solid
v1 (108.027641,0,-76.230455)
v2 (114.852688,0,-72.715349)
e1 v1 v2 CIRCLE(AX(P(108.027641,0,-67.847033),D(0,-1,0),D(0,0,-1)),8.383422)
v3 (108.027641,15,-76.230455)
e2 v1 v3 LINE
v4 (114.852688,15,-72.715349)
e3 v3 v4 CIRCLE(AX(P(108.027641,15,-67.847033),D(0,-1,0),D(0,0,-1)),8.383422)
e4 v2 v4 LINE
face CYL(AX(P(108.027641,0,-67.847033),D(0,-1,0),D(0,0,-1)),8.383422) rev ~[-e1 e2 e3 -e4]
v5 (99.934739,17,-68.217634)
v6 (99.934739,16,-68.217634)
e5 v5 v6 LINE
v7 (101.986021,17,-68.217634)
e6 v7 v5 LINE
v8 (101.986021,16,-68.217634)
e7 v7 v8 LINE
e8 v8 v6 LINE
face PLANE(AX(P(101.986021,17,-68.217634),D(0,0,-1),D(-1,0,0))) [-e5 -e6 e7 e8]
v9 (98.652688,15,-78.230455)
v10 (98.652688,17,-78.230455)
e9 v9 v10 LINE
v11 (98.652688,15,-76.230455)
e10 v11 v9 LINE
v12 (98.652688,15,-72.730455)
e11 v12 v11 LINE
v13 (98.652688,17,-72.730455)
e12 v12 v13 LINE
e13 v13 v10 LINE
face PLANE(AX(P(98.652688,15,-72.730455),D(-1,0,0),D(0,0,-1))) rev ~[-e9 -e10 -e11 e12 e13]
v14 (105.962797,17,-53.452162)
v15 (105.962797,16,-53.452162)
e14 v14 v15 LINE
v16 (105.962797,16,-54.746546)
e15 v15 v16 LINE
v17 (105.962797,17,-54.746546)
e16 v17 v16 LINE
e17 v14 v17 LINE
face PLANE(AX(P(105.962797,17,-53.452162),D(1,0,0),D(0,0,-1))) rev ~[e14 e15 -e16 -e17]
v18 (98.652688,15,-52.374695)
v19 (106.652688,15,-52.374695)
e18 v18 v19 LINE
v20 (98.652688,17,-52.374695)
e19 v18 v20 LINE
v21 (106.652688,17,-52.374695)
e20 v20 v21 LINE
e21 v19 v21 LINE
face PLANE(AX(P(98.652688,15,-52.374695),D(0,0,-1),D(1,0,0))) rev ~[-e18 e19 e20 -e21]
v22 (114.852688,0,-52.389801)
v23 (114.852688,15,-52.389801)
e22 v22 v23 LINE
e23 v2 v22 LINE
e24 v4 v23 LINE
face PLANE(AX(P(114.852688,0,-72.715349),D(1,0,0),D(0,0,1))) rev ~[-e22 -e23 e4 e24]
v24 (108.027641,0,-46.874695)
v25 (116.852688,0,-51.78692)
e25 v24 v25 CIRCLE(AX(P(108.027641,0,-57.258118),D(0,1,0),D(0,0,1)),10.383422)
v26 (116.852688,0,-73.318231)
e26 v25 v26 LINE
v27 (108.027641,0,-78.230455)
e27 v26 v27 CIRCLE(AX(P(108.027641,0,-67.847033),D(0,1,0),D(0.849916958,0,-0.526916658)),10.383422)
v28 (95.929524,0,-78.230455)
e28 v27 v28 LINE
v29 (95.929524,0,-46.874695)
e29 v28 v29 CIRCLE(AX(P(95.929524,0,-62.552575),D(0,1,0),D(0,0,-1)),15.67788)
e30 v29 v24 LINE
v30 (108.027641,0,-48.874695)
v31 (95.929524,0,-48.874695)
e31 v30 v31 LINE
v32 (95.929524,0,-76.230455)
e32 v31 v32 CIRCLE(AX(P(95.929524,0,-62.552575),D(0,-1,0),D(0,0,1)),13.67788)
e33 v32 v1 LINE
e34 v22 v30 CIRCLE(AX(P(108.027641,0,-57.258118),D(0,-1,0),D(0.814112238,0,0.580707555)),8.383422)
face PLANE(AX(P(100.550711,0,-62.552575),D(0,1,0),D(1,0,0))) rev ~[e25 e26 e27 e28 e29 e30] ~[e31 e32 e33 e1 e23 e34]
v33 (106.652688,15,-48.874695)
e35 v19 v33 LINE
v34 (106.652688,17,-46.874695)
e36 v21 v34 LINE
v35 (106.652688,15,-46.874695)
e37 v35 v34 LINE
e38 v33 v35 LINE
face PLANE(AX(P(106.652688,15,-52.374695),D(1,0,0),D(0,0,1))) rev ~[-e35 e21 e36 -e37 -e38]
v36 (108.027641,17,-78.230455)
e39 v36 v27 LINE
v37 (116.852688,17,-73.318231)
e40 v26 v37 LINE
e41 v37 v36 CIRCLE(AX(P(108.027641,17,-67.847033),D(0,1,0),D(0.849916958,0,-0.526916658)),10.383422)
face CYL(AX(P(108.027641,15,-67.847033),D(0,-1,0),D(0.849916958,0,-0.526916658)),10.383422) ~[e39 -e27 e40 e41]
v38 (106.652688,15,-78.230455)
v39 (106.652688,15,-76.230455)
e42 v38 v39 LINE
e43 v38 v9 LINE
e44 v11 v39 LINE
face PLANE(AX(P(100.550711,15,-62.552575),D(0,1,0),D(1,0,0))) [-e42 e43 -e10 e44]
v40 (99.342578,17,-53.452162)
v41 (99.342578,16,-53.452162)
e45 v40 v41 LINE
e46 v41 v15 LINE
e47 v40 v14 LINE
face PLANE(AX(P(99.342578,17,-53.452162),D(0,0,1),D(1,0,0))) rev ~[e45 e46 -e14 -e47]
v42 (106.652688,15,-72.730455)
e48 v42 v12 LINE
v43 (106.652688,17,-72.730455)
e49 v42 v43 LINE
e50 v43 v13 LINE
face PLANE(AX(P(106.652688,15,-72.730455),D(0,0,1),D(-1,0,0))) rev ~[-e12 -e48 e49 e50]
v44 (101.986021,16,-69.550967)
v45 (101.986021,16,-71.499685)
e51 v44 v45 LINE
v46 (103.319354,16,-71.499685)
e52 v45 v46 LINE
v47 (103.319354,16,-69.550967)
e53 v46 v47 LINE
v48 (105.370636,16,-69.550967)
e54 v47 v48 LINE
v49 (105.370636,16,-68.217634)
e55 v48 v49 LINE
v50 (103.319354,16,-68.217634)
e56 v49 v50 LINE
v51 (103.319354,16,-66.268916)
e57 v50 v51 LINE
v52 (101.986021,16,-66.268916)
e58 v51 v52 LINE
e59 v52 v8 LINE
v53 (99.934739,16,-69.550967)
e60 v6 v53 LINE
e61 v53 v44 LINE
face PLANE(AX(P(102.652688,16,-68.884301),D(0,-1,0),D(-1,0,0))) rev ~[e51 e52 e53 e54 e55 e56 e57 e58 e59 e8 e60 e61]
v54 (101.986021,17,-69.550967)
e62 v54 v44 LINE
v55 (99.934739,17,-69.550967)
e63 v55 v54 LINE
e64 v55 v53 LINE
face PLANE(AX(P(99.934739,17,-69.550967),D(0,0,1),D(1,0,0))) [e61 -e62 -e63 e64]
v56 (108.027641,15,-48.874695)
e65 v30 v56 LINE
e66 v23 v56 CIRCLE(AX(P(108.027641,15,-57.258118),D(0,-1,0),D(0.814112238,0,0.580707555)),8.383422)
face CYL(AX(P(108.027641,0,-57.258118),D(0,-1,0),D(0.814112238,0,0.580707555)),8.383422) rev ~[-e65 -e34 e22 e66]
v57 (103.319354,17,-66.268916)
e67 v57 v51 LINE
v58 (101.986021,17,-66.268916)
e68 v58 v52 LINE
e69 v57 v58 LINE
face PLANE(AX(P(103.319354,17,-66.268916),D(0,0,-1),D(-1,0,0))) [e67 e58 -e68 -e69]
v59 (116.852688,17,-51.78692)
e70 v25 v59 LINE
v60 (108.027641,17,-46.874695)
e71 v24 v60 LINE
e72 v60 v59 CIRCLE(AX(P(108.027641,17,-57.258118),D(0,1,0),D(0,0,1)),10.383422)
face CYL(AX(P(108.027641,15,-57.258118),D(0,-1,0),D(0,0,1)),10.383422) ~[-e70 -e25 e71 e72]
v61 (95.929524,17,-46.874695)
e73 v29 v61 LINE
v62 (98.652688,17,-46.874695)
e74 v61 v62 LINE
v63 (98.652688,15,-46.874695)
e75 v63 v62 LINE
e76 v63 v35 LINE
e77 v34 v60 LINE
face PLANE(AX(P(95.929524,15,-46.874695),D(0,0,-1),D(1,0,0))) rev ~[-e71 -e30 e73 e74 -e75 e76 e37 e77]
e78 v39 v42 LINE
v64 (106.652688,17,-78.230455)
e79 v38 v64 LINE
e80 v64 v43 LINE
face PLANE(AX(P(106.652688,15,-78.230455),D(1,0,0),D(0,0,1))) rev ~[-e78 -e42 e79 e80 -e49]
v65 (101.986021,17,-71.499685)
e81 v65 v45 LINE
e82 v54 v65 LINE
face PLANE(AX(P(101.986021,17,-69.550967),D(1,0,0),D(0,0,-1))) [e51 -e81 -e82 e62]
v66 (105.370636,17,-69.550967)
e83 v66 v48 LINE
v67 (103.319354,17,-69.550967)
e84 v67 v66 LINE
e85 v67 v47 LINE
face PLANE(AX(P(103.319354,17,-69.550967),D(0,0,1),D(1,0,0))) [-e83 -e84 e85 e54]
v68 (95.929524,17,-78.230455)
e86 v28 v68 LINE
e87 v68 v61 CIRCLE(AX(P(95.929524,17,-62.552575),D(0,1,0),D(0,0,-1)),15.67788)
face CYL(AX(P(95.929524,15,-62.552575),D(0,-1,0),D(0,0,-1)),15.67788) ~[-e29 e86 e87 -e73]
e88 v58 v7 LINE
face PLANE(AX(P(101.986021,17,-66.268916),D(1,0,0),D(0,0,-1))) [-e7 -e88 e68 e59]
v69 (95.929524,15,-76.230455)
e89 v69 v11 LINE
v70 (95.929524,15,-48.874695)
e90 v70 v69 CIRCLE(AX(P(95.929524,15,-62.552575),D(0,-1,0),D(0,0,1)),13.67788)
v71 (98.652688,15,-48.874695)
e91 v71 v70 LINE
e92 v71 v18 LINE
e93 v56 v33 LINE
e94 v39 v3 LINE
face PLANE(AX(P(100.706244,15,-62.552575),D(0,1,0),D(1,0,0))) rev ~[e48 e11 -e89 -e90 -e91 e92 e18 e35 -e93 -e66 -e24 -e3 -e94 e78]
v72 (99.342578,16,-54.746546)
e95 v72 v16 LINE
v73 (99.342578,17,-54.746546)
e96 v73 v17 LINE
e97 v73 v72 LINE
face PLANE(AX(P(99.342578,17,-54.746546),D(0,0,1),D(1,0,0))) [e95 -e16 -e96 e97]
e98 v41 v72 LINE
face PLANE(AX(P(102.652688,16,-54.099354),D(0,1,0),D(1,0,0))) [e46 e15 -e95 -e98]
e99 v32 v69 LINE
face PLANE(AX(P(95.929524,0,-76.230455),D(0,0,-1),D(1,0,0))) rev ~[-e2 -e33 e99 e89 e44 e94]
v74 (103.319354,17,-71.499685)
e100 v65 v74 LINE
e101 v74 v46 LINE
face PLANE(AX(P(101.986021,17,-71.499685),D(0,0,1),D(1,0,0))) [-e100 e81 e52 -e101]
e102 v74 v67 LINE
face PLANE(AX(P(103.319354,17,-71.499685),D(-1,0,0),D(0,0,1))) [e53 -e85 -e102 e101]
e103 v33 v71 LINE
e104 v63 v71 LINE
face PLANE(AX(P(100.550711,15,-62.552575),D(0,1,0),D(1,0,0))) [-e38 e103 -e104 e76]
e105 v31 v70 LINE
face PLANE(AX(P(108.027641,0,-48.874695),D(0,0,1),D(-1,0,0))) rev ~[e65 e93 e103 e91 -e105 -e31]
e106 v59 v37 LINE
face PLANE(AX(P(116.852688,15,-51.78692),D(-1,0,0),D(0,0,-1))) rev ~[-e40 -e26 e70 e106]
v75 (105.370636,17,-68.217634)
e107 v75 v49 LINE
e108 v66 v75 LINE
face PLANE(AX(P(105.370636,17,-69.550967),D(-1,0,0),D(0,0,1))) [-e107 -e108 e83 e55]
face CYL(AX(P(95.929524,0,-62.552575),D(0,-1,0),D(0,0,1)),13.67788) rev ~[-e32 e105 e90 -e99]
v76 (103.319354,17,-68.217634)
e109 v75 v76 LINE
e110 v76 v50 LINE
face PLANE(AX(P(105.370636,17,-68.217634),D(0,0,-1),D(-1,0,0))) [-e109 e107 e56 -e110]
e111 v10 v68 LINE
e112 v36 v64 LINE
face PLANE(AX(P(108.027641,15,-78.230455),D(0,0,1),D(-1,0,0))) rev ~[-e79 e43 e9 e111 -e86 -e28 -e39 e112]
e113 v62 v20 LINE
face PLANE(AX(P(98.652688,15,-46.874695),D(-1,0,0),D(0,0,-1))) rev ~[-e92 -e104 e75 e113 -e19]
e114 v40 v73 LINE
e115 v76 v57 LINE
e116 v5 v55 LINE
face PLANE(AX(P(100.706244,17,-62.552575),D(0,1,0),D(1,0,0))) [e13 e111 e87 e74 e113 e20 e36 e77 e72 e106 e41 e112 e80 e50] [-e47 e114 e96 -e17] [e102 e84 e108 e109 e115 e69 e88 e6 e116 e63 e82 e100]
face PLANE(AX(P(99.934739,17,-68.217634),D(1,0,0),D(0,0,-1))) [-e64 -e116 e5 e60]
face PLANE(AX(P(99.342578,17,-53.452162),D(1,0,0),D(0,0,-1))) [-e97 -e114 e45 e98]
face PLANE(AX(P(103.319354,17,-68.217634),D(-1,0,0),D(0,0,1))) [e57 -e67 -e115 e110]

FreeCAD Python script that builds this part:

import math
import FreeCAD as App
import Part
import Sketcher

V = App.Vector
Q = App.Units.Quantity


def add_polygon(sketch, points):
    """Adds a closed chain of lines whose ends are joined by coincident constraints."""
    first, n = sketch.GeometryCount, len(points)
    for a, b in zip(points, points[1:] + points[:1]):
        sketch.addGeometry(Part.LineSegment(App.Vector(*a, 0), App.Vector(*b, 0)), False)
    for i in range(n):
        sketch.addConstraint(Sketcher.Constraint("Coincident", first + i, 2, first + (i + 1) % n, 1))

doc = App.newDocument("Part")
body = doc.addObject("PartDesign::Body", "Body")

sketch1 = body.newObject("Sketcher::SketchObject", "Sketch")
sketch1.AttachmentSupport = (doc.getObject("XZ_Plane"), [""])
sketch1.MapMode = "FlatFace"
sketch1.addGeometry(Part.LineSegment(V(96, -47, 0), V(108, -47, 0)), False)
sketch1.addGeometry(Part.ArcOfCircle(Part.Circle(V(108, -57, 0), V(0, 0, 1), 10), math.radians(32), math.radians(90)), False)
sketch1.addGeometry(Part.LineSegment(V(117, -52, 0), V(117, -73, 0)), False)
sketch1.addGeometry(Part.ArcOfCircle(Part.Circle(V(108, -68, 0), V(0, 0, 1), 10), math.radians(-90), math.radians(-32)), False)
sketch1.addGeometry(Part.LineSegment(V(108, -78, 0), V(96, -78, 0)), False)
sketch1.addGeometry(Part.ArcOfCircle(Part.Circle(V(96, -63, 0), V(0, 0, 1), 16), math.radians(90), math.radians(270)), False)
sketch1.addGeometry(Part.ArcOfCircle(Part.Circle(V(96, -63, 0), V(0, 0, 1), 14), math.radians(90), math.radians(270)), False)
sketch1.addGeometry(Part.LineSegment(V(96, -76, 0), V(108, -76, 0)), False)
sketch1.addGeometry(Part.ArcOfCircle(Part.Circle(V(108, -68, 0), V(0, 0, 1), 8), math.radians(-90), math.radians(-36)), False)
sketch1.addGeometry(Part.LineSegment(V(115, -73, 0), V(115, -52, 0)), False)
sketch1.addGeometry(Part.ArcOfCircle(Part.Circle(V(108, -57, 0), V(0, 0, 1), 8), math.radians(36), math.radians(90)), False)
sketch1.addGeometry(Part.LineSegment(V(108, -49, 0), V(96, -49, 0)), False)
sketch1.addConstraint(Sketcher.Constraint("Tangent", 0, 2, 1, 2))
sketch1.addConstraint(Sketcher.Constraint("Coincident", 1, 1, 2, 1))
sketch1.addConstraint(Sketcher.Constraint("Coincident", 2, 2, 3, 2))
sketch1.addConstraint(Sketcher.Constraint("Tangent", 3, 1, 4, 1))
sketch1.addConstraint(Sketcher.Constraint("Tangent", 4, 2, 5, 2))
sketch1.addConstraint(Sketcher.Constraint("Tangent", 5, 1, 0, 1))
sketch1.addConstraint(Sketcher.Constraint("Tangent", 6, 2, 7, 1))
sketch1.addConstraint(Sketcher.Constraint("Tangent", 7, 2, 8, 1))
sketch1.addConstraint(Sketcher.Constraint("Coincident", 8, 2, 9, 1))
sketch1.addConstraint(Sketcher.Constraint("Coincident", 9, 2, 10, 1))
sketch1.addConstraint(Sketcher.Constraint("Tangent", 10, 2, 11, 1))
sketch1.addConstraint(Sketcher.Constraint("Tangent", 11, 2, 6, 1))
sketch1.addConstraint(Sketcher.Constraint("Horizontal", 0))
sketch1.addConstraint(Sketcher.Constraint("Vertical", 2))
sketch1.addConstraint(Sketcher.Constraint("Horizontal", 4))
sketch1.addConstraint(Sketcher.Constraint("Horizontal", 7))
sketch1.addConstraint(Sketcher.Constraint("Vertical", 9))
sketch1.addConstraint(Sketcher.Constraint("Horizontal", 11))
sketch1.addConstraint(Sketcher.Constraint("Coincident", 6, 3, 5, 3))
sketch1.addConstraint(Sketcher.Constraint("Coincident", 8, 3, 3, 3))
sketch1.addConstraint(Sketcher.Constraint("Coincident", 10, 3, 1, 3))
sketch1.addConstraint(Sketcher.Constraint("Equal", 1, 3))
sketch1.addConstraint(Sketcher.Constraint("Vertical", 1, 3, 3, 3))
sketch1.addConstraint(Sketcher.Constraint("DistanceY", 4, 2, 6, 2, Q("2 mm")))
sketch1.addConstraint(Sketcher.Constraint("DistanceX", 8, 2, 2, 2, Q("2 mm")))
sketch1.addConstraint(Sketcher.Constraint("Radius", 5, Q("15.67788 mm")))
sketch1.addConstraint(Sketcher.Constraint("Radius", 1, Q("10.383422 mm")))
sketch1.addConstraint(Sketcher.Constraint("DistanceY", 2, 2, 2, 1, Q("21.531311 mm")))
sketch1.addConstraint(Sketcher.Constraint("DistanceY", 9, 2, -1, 1, Q("52.389801 mm")))
sketch1.addConstraint(Sketcher.Constraint("DistanceX", 0, 1, 0, 2, Q("12.098117 mm")))
sketch1.addConstraint(Sketcher.Constraint("DistanceX", -1, 1, 1, 3, Q("108.027641 mm")))
pad1 = body.newObject("PartDesign::Pad", "Pad")
pad1.Profile = sketch1
pad1.Length = 15
pad1.Reversed = True

sketch2 = body.newObject("Sketcher::SketchObject", "Sketch001")
sketch2.AttachmentSupport = (doc.getObject("XZ_Plane"), [""])
sketch2.MapMode = "FlatFace"
sketch2.AttachmentOffset = App.Placement(V(0, 0, -15), App.Rotation())
sketch2.addGeometry(Part.LineSegment(V(106.7, -72.7, 0), V(98.7, -72.7, 0)), False)
sketch2.addGeometry(Part.LineSegment(V(98.7, -72.7, 0), V(98.7, -78.2, 0)), False)
sketch2.addGeometry(Part.LineSegment(V(98.7, -78.2, 0), V(95.9, -78.2, 0)), False)
sketch2.addGeometry(Part.ArcOfCircle(Part.Circle(V(95.9, -62.6, 0), V(0, 0, 1), 15.7), math.radians(90), math.radians(270)), False)
sketch2.addGeometry(Part.LineSegment(V(95.9, -46.9, 0), V(98.7, -46.9, 0)), False)
sketch2.addGeometry(Part.LineSegment(V(98.7, -46.9, 0), V(98.7, -52.4, 0)), False)
sketch2.addGeometry(Part.LineSegment(V(98.7, -52.4, 0), V(106.7, -52.4, 0)), False)
sketch2.addGeometry(Part.LineSegment(V(106.7, -52.4, 0), V(106.7, -46.9, 0)), False)
sketch2.addGeometry(Part.LineSegment(V(106.7, -46.9, 0), V(108, -46.9, 0)), False)
sketch2.addGeometry(Part.ArcOfCircle(Part.Circle(V(108, -57.3, 0), V(0, 0, 1), 10.4), math.radians(32), math.radians(90)), False)
sketch2.addGeometry(Part.LineSegment(V(116.9, -51.8, 0), V(116.9, -73.3, 0)), False)
sketch2.addGeometry(Part.ArcOfCircle(Part.Circle(V(108, -67.8, 0), V(0, 0, 1), 10.4), math.radians(-90), math.radians(-32)), False)
sketch2.addGeometry(Part.LineSegment(V(108, -78.2, 0), V(106.7, -78.2, 0)), False)
sketch2.addGeometry(Part.LineSegment(V(106.7, -78.2, 0), V(106.7, -72.7, 0)), False)
sketch2.addConstraint(Sketcher.Constraint("Coincident", 0, 2, 1, 1))
sketch2.addConstraint(Sketcher.Constraint("Coincident", 1, 2, 2, 1))
sketch2.addConstraint(Sketcher.Constraint("Tangent", 2, 2, 3, 2))
sketch2.addConstraint(Sketcher.Constraint("Tangent", 3, 1, 4, 1))
sketch2.addConstraint(Sketcher.Constraint("Coincident", 4, 2, 5, 1))
sketch2.addConstraint(Sketcher.Constraint("Coincident", 5, 2, 6, 1))
sketch2.addConstraint(Sketcher.Constraint("Coincident", 6, 2, 7, 1))
sketch2.addConstraint(Sketcher.Constraint("Coincident", 7, 2, 8, 1))
sketch2.addConstraint(Sketcher.Constraint("Tangent", 8, 2, 9, 2))
sketch2.addConstraint(Sketcher.Constraint("Coincident", 9, 1, 10, 1))
sketch2.addConstraint(Sketcher.Constraint("Coincident", 10, 2, 11, 2))
sketch2.addConstraint(Sketcher.Constraint("Tangent", 11, 1, 12, 1))
sketch2.addConstraint(Sketcher.Constraint("Coincident", 12, 2, 13, 1))
sketch2.addConstraint(Sketcher.Constraint("Coincident", 13, 2, 0, 1))
sketch2.addConstraint(Sketcher.Constraint("Horizontal", 0))
sketch2.addConstraint(Sketcher.Constraint("Vertical", 1))
sketch2.addConstraint(Sketcher.Constraint("Horizontal", 2))
sketch2.addConstraint(Sketcher.Constraint("Horizontal", 4))
sketch2.addConstraint(Sketcher.Constraint("Vertical", 5))
sketch2.addConstraint(Sketcher.Constraint("Horizontal", 6))
sketch2.addConstraint(Sketcher.Constraint("Vertical", 7))
sketch2.addConstraint(Sketcher.Constraint("Horizontal", 8))
sketch2.addConstraint(Sketcher.Constraint("Vertical", 10))
sketch2.addConstraint(Sketcher.Constraint("Horizontal", 12))
sketch2.addConstraint(Sketcher.Constraint("Vertical", 13))
sketch2.addConstraint(Sketcher.Constraint("Equal", 9, 11))
sketch2.addConstraint(Sketcher.Constraint("Horizontal", 4, 2, 7, 2))
sketch2.addConstraint(Sketcher.Constraint("Horizontal", 2, 2, 11, 1))
sketch2.addConstraint(Sketcher.Constraint("Vertical", 9, 3, 11, 3))
sketch2.addConstraint(Sketcher.Constraint("Vertical", 1, 2, 4, 2))
sketch2.addConstraint(Sketcher.Constraint("Vertical", 7, 2, 12, 2))
sketch2.addConstraint(Sketcher.Constraint("Equal", 1, 5))
sketch2.addConstraint(Sketcher.Constraint("DistanceX", 0, 2, 0, 1, Q("8 mm")))
sketch2.addConstraint(Sketcher.Constraint("DistanceY", 1, 2, 1, 1, Q("5.5 mm")))
sketch2.addConstraint(Sketcher.Constraint("DistanceX", 6, 2, 9, 1, Q("10.2 mm")))
sketch2.addConstraint(Sketcher.Constraint("Radius", 3, Q("15.67788 mm")))
sketch2.addConstraint(Sketcher.Constraint("Radius", 9, Q("10.383422 mm")))
sketch2.addConstraint(Sketcher.Constraint("DistanceY", 10, 2, 10, 1, Q("21.531311 mm")))
sketch2.addConstraint(Sketcher.Constraint("DistanceX", 2, 2, 2, 1, Q("2.723164 mm")))
sketch2.addConstraint(Sketcher.Constraint("DistanceX", -1, 1, 9, 3, Q("108.027641 mm")))
sketch2.addConstraint(Sketcher.Constraint("DistanceY", 9, 1, -1, 1, Q("51.78692 mm")))
pad2 = body.newObject("PartDesign::Pad", "Pad001")
pad2.Profile = sketch2
pad2.Length = 2
pad2.Reversed = True

sketch3 = body.newObject("Sketcher::SketchObject", "Sketch002")
sketch3.AttachmentSupport = (doc.getObject("XZ_Plane"), [""])
sketch3.MapMode = "FlatFace"
sketch3.AttachmentOffset = App.Placement(V(0, 0, -17), App.Rotation())
add_polygon(sketch3, [(99.3, -54.7), (99.3, -53.5), (106, -53.5), (106, -54.7)])
add_polygon(sketch3, [(103.3, -66.3), (103.3, -68.2), (105.4, -68.2), (105.4, -69.6), (103.3, -69.6), (103.3, -71.5), (102, -71.5), (102, -69.6), (99.9, -69.6), (99.9, -68.2), (102, -68.2), (102, -66.3)])
sketch3.addConstraint(Sketcher.Constraint("Vertical", 0))
sketch3.addConstraint(Sketcher.Constraint("Horizontal", 1))
sketch3.addConstraint(Sketcher.Constraint("Vertical", 2))
sketch3.addConstraint(Sketcher.Constraint("Horizontal", 3))
sketch3.addConstraint(Sketcher.Constraint("Vertical", 4))
sketch3.addConstraint(Sketcher.Constraint("Horizontal", 5))
sketch3.addConstraint(Sketcher.Constraint("Vertical", 6))
sketch3.addConstraint(Sketcher.Constraint("Horizontal", 7))
sketch3.addConstraint(Sketcher.Constraint("Vertical", 8))
sketch3.addConstraint(Sketcher.Constraint("Horizontal", 9))
sketch3.addConstraint(Sketcher.Constraint("Vertical", 10))
sketch3.addConstraint(Sketcher.Constraint("Horizontal", 11))
sketch3.addConstraint(Sketcher.Constraint("Vertical", 12))
sketch3.addConstraint(Sketcher.Constraint("Horizontal", 13))
sketch3.addConstraint(Sketcher.Constraint("Vertical", 14))
sketch3.addConstraint(Sketcher.Constraint("Horizontal", 15))
sketch3.addConstraint(Sketcher.Constraint("Horizontal", 7, 2, 10, 2))
sketch3.addConstraint(Sketcher.Constraint("Horizontal", 5, 2, 12, 2))
sketch3.addConstraint(Sketcher.Constraint("Vertical", 4, 2, 7, 2))
sketch3.addConstraint(Sketcher.Constraint("Vertical", 10, 2, 13, 2))
sketch3.addConstraint(Sketcher.Constraint("Equal", 7, 11))
sketch3.addConstraint(Sketcher.Constraint("Equal", 15, 6))
sketch3.addConstraint(Sketcher.Constraint("Equal", 4, 8))
sketch3.addConstraint(Sketcher.Constraint("DistanceX", 1, 1, 1, 2, Q("6.620219 mm")))
sketch3.addConstraint(Sketcher.Constraint("DistanceX", 5, 1, 5, 2, Q("2.051282 mm")))
sketch3.addConstraint(Sketcher.Constraint("DistanceX", 9, 2, 9, 1, Q("1.333333 mm")))
sketch3.addConstraint(Sketcher.Constraint("DistanceY", 0, 1, 0, 2, Q("1.294383 mm")))
sketch3.addConstraint(Sketcher.Constraint("DistanceY", 4, 2, 4, 1, Q("1.948718 mm")))
sketch3.addConstraint(Sketcher.Constraint("DistanceX", -1, 1, 0, 2, Q("99.342578 mm")))
sketch3.addConstraint(Sketcher.Constraint("DistanceX", -1, 1, 9, 2, Q("101.986021 mm")))
sketch3.addConstraint(Sketcher.Constraint("DistanceY", 4, 2, 2, 2, Q("13.471088 mm")))
sketch3.addConstraint(Sketcher.Constraint("DistanceY", 0, 2, -1, 1, Q("53.452162 mm")))
pocket1 = body.newObject("PartDesign::Pocket", "Pocket")
pocket1.Profile = sketch3
pocket1.Length = 1
pocket1.Reversed = True

doc.recompute()
